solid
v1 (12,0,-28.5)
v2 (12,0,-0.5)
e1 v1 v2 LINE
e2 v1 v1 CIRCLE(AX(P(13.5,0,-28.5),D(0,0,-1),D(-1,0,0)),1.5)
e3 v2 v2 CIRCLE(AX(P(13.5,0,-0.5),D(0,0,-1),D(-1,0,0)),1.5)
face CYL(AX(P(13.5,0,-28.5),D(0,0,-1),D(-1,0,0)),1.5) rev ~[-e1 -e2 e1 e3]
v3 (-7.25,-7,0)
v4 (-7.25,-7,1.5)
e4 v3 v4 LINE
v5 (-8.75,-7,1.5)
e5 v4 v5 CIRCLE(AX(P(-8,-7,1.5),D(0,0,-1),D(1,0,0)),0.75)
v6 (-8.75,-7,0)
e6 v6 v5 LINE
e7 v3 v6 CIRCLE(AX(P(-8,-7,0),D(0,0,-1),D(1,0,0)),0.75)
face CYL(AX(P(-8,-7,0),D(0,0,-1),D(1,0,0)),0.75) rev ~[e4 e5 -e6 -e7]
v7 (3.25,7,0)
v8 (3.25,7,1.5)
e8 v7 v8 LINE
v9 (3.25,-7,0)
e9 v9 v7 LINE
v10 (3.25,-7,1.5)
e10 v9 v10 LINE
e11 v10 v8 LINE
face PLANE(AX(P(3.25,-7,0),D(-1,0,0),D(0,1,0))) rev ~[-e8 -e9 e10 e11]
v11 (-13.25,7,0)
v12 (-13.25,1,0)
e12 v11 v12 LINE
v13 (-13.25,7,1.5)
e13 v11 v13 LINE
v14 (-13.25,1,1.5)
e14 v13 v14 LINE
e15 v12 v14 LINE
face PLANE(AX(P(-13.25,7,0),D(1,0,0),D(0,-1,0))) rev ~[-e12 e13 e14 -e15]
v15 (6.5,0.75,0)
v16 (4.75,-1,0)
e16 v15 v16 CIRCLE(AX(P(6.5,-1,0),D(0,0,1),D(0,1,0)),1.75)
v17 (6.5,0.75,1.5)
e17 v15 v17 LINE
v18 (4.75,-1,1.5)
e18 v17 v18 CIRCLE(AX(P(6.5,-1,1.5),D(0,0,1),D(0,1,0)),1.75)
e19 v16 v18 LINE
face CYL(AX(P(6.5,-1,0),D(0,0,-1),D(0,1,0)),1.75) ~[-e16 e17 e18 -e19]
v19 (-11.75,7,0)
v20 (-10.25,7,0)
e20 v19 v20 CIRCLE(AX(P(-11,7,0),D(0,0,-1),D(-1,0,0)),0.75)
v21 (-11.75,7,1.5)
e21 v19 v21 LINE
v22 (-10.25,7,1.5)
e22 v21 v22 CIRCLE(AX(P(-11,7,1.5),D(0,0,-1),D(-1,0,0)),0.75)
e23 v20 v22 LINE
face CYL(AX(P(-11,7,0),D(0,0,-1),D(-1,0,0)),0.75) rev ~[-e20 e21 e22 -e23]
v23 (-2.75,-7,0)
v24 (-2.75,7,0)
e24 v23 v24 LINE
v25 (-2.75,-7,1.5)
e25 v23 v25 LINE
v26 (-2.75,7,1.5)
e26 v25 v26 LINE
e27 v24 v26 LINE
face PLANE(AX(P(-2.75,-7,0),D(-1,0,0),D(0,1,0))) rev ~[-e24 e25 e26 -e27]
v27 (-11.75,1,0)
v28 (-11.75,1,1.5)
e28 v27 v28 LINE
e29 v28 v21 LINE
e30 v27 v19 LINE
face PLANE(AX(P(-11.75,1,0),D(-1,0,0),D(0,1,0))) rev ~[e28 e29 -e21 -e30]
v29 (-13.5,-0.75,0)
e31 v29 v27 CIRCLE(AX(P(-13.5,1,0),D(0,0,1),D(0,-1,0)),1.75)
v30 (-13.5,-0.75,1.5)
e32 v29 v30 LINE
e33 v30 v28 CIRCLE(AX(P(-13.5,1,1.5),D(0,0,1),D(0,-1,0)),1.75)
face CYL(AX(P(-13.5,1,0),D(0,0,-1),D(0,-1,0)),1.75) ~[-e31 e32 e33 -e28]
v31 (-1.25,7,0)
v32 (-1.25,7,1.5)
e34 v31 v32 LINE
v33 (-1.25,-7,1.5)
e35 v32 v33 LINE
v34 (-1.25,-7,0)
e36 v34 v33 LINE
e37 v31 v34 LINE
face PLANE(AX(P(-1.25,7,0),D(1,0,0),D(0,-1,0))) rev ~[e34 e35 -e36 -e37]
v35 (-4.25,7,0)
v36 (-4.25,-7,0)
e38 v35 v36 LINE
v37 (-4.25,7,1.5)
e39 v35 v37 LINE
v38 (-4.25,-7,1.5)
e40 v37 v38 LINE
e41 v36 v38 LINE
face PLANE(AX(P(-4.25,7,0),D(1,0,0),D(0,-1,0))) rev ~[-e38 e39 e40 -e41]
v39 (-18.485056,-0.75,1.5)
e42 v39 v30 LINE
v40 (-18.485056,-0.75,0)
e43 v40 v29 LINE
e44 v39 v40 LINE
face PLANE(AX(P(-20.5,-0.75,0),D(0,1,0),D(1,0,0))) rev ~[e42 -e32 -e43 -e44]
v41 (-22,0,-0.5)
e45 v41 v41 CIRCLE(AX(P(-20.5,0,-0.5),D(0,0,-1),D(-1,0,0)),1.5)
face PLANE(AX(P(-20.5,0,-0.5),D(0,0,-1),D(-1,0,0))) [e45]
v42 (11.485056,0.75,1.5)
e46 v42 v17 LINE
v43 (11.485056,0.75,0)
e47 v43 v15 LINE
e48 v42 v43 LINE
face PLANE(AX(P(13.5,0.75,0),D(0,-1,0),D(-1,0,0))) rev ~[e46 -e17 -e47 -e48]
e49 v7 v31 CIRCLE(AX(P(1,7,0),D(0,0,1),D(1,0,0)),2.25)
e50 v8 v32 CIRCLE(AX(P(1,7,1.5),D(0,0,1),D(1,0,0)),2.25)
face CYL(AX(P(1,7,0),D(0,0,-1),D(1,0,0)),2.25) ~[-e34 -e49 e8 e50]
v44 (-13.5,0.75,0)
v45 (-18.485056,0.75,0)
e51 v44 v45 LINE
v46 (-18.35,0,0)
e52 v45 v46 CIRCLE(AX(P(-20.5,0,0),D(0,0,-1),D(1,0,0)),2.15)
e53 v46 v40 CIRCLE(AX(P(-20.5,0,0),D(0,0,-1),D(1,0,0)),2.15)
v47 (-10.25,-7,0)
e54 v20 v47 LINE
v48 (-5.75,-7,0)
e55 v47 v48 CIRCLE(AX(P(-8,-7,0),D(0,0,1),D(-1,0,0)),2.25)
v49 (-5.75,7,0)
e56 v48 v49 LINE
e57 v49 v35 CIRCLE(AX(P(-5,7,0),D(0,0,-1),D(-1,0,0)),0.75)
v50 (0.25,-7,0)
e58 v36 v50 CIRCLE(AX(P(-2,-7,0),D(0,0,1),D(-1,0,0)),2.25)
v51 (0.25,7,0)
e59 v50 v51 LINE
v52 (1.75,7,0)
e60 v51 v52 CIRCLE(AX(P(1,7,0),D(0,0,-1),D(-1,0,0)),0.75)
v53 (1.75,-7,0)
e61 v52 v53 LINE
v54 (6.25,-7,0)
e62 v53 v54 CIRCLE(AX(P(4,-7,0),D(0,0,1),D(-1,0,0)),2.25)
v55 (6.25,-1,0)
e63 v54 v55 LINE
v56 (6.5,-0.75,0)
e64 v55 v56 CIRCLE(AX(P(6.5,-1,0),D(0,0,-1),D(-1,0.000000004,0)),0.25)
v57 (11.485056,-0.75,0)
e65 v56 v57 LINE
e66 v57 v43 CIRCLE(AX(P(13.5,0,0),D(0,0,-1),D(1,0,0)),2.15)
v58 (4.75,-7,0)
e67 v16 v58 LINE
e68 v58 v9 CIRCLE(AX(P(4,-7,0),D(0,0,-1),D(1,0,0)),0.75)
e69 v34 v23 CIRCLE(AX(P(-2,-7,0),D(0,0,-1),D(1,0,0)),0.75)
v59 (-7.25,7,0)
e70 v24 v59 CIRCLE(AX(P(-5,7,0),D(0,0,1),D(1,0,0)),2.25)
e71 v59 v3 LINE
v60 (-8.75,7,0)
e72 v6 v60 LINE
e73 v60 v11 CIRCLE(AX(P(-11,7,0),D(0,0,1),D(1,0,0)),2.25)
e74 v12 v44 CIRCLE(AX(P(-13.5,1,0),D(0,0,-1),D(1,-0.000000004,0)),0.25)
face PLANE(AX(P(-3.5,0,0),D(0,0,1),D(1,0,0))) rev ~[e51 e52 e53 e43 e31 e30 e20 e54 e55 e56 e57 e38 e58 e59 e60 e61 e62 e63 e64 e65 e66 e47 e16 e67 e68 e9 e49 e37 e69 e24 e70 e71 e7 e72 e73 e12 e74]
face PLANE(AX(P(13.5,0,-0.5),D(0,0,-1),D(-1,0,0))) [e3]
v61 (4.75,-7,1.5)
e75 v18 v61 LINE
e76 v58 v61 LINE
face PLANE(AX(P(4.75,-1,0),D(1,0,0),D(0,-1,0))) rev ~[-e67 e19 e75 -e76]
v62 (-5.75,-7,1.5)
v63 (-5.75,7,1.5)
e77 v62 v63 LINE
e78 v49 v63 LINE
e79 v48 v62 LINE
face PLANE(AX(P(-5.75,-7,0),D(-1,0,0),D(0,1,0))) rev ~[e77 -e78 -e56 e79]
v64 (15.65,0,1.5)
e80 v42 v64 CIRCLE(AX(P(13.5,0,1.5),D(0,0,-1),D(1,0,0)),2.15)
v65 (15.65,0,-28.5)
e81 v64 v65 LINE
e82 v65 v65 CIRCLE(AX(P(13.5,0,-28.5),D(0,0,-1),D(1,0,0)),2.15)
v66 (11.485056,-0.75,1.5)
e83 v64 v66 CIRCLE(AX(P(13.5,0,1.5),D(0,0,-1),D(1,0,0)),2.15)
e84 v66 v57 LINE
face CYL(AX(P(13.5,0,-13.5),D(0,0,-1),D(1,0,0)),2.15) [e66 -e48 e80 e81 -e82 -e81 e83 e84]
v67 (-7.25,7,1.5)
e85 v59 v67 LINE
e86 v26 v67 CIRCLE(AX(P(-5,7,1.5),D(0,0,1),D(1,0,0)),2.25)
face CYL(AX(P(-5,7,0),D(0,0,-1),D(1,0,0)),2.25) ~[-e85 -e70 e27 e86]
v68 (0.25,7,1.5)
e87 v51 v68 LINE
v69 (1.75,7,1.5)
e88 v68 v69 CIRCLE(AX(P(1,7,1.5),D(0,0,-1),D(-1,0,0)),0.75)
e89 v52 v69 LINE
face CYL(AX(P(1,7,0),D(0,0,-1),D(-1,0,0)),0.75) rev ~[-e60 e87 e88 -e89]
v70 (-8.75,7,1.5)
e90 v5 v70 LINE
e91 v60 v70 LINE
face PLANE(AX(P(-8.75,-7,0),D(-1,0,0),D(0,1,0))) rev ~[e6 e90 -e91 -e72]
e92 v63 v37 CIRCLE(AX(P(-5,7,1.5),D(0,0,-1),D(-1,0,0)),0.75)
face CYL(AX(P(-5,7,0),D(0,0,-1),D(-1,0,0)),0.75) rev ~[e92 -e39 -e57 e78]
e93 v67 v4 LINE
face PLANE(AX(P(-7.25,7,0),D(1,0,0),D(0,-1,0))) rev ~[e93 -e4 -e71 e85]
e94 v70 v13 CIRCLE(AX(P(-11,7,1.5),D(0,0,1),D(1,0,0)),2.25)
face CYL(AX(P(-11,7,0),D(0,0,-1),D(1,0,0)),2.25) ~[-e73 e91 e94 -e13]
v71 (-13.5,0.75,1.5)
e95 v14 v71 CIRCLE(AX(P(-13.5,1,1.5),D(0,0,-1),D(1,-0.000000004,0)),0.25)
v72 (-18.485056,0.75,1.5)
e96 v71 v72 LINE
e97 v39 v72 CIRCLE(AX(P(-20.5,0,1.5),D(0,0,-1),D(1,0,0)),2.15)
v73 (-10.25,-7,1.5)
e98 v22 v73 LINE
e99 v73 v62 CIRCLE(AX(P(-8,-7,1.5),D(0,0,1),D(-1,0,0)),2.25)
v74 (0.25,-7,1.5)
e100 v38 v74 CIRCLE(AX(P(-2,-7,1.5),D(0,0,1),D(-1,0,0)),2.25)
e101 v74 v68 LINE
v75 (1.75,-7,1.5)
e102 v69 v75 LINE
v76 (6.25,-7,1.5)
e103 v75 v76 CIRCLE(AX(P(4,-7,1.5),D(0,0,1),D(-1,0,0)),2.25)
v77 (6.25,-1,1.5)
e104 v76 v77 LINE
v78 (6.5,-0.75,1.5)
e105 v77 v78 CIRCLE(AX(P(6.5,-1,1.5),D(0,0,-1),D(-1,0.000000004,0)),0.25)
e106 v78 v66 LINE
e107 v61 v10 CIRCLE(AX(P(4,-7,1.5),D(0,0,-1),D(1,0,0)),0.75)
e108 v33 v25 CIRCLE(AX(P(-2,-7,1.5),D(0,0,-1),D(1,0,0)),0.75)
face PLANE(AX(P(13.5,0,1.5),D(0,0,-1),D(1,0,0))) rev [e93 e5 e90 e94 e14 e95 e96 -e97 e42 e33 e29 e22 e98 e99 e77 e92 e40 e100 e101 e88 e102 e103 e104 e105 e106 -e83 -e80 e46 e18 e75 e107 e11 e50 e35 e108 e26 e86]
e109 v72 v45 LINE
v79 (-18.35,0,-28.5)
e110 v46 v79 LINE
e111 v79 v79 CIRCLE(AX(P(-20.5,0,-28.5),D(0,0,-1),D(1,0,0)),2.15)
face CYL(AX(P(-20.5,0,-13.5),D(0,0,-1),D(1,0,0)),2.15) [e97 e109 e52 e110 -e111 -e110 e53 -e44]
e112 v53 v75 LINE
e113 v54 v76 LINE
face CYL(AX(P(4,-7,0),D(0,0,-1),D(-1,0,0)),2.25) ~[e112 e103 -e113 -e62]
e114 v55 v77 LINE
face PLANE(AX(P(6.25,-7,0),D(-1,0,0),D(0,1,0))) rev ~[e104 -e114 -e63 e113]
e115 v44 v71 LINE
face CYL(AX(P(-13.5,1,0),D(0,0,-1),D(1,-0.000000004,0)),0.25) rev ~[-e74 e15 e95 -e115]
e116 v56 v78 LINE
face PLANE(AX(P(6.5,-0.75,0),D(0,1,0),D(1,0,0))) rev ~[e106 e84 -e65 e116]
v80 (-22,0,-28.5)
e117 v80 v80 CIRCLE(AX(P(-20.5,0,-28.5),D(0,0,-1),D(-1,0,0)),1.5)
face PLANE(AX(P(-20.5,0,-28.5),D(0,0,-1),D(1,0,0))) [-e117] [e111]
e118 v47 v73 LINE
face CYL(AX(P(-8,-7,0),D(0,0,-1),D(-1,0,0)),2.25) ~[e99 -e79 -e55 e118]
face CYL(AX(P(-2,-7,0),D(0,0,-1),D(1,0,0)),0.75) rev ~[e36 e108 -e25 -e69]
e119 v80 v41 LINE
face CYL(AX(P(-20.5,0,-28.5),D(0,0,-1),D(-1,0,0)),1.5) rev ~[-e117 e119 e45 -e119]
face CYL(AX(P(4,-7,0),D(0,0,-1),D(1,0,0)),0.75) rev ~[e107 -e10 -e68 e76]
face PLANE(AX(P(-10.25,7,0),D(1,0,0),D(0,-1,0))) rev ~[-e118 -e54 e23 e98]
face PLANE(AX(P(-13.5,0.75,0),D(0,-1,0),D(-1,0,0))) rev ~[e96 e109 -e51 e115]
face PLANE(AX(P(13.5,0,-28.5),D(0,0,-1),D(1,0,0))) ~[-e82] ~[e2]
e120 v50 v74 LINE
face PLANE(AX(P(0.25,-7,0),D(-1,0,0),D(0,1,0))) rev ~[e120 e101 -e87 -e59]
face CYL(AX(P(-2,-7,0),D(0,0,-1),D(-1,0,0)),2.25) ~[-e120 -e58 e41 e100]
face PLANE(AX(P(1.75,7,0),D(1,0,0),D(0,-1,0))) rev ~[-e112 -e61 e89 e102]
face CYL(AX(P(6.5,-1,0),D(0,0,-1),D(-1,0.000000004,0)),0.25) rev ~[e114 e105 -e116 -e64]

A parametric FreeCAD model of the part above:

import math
import FreeCAD as App
import Part
import Sketcher
from FreeCAD import Vector


def add_polygon(sketch, points):
    """Adds a closed chain of lines whose ends are joined by coincident constraints."""
    first, n = sketch.GeometryCount, len(points)
    for a, b in zip(points, points[1:] + points[:1]):
        sketch.addGeometry(Part.LineSegment(App.Vector(*a, 0), App.Vector(*b, 0)), False)
    for i in range(n):
        sketch.addConstraint(Sketcher.Constraint("Coincident", first + i, 2, first + (i + 1) % n, 1))

doc = App.newDocument("Part")
body = doc.addObject("PartDesign::Body", "Body")

sketch1 = body.newObject("Sketcher::SketchObject", "Sketch")
sketch1.AttachmentSupport = (doc.getObject("XY_Plane"), [""])
sketch1.MapMode = "FlatFace"
sketch1.addGeometry([
    Part.LineSegment(Vector(-20.5, -0.75, 0), Vector(-13.5, -0.75, 0)),
    Part.ArcOfCircle(Part.Circle(Vector(-13.5, 1, 0), Vector(0, 0, 1), 1.75), math.radians(-90), math.radians(0)),
    Part.LineSegment(Vector(-11.75, 1, 0), Vector(-11.75, 7, 0)),
    Part.ArcOfCircle(Part.Circle(Vector(-11, 7, 0), Vector(0, 0, 1), 0.75), math.radians(0), math.radians(180)),
    Part.LineSegment(Vector(-10.25, 7, 0), Vector(-10.25, -7, 0)),
    Part.ArcOfCircle(Part.Circle(Vector(-8, -7, 0), Vector(0, 0, 1), 2.25), math.radians(180), math.radians(360)),
    Part.LineSegment(Vector(-5.75, -7, 0), Vector(-5.75, 7, 0)),
    Part.ArcOfCircle(Part.Circle(Vector(-5, 7, 0), Vector(0, 0, 1), 0.75), math.radians(0), math.radians(180)),
    Part.LineSegment(Vector(-4.25, 7, 0), Vector(-4.25, -7, 0)),
    Part.ArcOfCircle(Part.Circle(Vector(-2, -7, 0), Vector(0, 0, 1), 2.25), math.radians(180), math.radians(360)),
    Part.LineSegment(Vector(0.25, -7, 0), Vector(0.25, 7, 0)),
    Part.ArcOfCircle(Part.Circle(Vector(1, 7, 0), Vector(0, 0, 1), 0.75), math.radians(0), math.radians(180)),
    Part.LineSegment(Vector(1.75, 7, 0), Vector(1.75, -7, 0)),
    Part.ArcOfCircle(Part.Circle(Vector(4, -7, 0), Vector(0, 0, 1), 2.25), math.radians(180), math.radians(360)),
    Part.LineSegment(Vector(6.25, -7, 0), Vector(6.25, -1, 0)),
    Part.ArcOfCircle(Part.Circle(Vector(6.5, -1, 0), Vector(0, 0, 1), 0.25), math.radians(90), math.radians(180)),
    Part.LineSegment(Vector(6.5, -0.75, 0), Vector(13.5, -0.75, 0)),
    Part.ArcOfCircle(Part.Circle(Vector(13.5, 0, 0), Vector(0, 0, 1), 0.75), math.radians(-90), math.radians(90)),
    Part.LineSegment(Vector(13.5, 0.75, 0), Vector(6.5, 0.75, 0)),
    Part.ArcOfCircle(Part.Circle(Vector(6.5, -1, 0), Vector(0, 0, 1), 1.75), math.radians(90), math.radians(180)),
    Part.LineSegment(Vector(4.75, -1, 0), Vector(4.75, -7, 0)),
    Part.ArcOfCircle(Part.Circle(Vector(4, -7, 0), Vector(0, 0, 1), 0.75), math.radians(180), math.radians(360)),
    Part.LineSegment(Vector(3.25, -7, 0), Vector(3.25, 7, 0)),
    Part.ArcOfCircle(Part.Circle(Vector(1, 7, 0), Vector(0, 0, 1), 2.25), math.radians(0), math.radians(180)),
    Part.LineSegment(Vector(-1.25, 7, 0), Vector(-1.25, -7, 0)),
    Part.ArcOfCircle(Part.Circle(Vector(-2, -7, 0), Vector(0, 0, 1), 0.75), math.radians(180), math.radians(360)),
    Part.LineSegment(Vector(-2.75, -7, 0), Vector(-2.75, 7, 0)),
    Part.ArcOfCircle(Part.Circle(Vector(-5, 7, 0), Vector(0, 0, 1), 2.25), math.radians(0), math.radians(180)),
    Part.LineSegment(Vector(-7.25, 7, 0), Vector(-7.25, -7, 0)),
    Part.ArcOfCircle(Part.Circle(Vector(-8, -7, 0), Vector(0, 0, 1), 0.75), math.radians(180), math.radians(360)),
    Part.LineSegment(Vector(-8.75, -7, 0), Vector(-8.75, 7, 0)),
    Part.ArcOfCircle(Part.Circle(Vector(-11, 7, 0), Vector(0, 0, 1), 2.25), math.radians(0), math.radians(180)),
    Part.LineSegment(Vector(-13.25, 7, 0), Vector(-13.25, 1, 0)),
    Part.ArcOfCircle(Part.Circle(Vector(-13.5, 1, 0), Vector(0, 0, 1), 0.25), math.radians(-90), math.radians(0)),
    Part.LineSegment(Vector(-13.5, 0.75, 0), Vector(-20.5, 0.75, 0)),
    Part.ArcOfCircle(Part.Circle(Vector(-20.5, 0, 0), Vector(0, 0, 1), 0.75), math.radians(90), math.radians(270)),
], False)
sketch1.addConstraint([
    Sketcher.Constraint("Tangent", 0, 2, 1, 1),
    Sketcher.Constraint("Tangent", 1, 2, 2, 1),
    Sketcher.Constraint("Tangent", 2, 2, 3, 2),
    Sketcher.Constraint("Tangent", 3, 1, 4, 1),
    Sketcher.Constraint("Tangent", 4, 2, 5, 1),
    Sketcher.Constraint("Tangent", 5, 2, 6, 1),
    Sketcher.Constraint("Tangent", 6, 2, 7, 2),
    Sketcher.Constraint("Tangent", 7, 1, 8, 1),
    Sketcher.Constraint("Tangent", 8, 2, 9, 1),
    Sketcher.Constraint("Tangent", 9, 2, 10, 1),
    Sketcher.Constraint("Tangent", 10, 2, 11, 2),
    Sketcher.Constraint("Tangent", 11, 1, 12, 1),
    Sketcher.Constraint("Tangent", 12, 2, 13, 1),
    Sketcher.Constraint("Tangent", 13, 2, 14, 1),
    Sketcher.Constraint("Tangent", 14, 2, 15, 2),
    Sketcher.Constraint("Tangent", 15, 1, 16, 1),
    Sketcher.Constraint("Tangent", 16, 2, 17, 1),
    Sketcher.Constraint("Tangent", 17, 2, 18, 1),
    Sketcher.Constraint("Tangent", 18, 2, 19, 1),
    Sketcher.Constraint("Tangent", 19, 2, 20, 1),
    Sketcher.Constraint("Tangent", 20, 2, 21, 2),
    Sketcher.Constraint("Tangent", 21, 1, 22, 1),
    Sketcher.Constraint("Tangent", 22, 2, 23, 1),
    Sketcher.Constraint("Tangent", 23, 2, 24, 1),
    Sketcher.Constraint("Tangent", 24, 2, 25, 2),
    Sketcher.Constraint("Tangent", 25, 1, 26, 1),
    Sketcher.Constraint("Tangent", 26, 2, 27, 1),
    Sketcher.Constraint("Tangent", 27, 2, 28, 1),
    Sketcher.Constraint("Tangent", 28, 2, 29, 2),
    Sketcher.Constraint("Tangent", 29, 1, 30, 1),
    Sketcher.Constraint("Tangent", 30, 2, 31, 1),
    Sketcher.Constraint("Tangent", 31, 2, 32, 1),
    Sketcher.Constraint("Tangent", 32, 2, 33, 2),
    Sketcher.Constraint("Tangent", 33, 1, 34, 1),
    Sketcher.Constraint("Tangent", 34, 2, 35, 1),
    Sketcher.Constraint("Tangent", 35, 2, 0, 1),
    Sketcher.Constraint("Horizontal", 0),
    Sketcher.Constraint("Vertical", 2),
    Sketcher.Constraint("Vertical", 4),
    Sketcher.Constraint("Vertical", 6),
    Sketcher.Constraint("Vertical", 8),
    Sketcher.Constraint("Vertical", 10),
    Sketcher.Constraint("Vertical", 12),
    Sketcher.Constraint("Vertical", 14),
    Sketcher.Constraint("Horizontal", 16),
    Sketcher.Constraint("Horizontal", 18),
    Sketcher.Constraint("Vertical", 20),
    Sketcher.Constraint("Vertical", 22),
    Sketcher.Constraint("Vertical", 24),
    Sketcher.Constraint("Vertical", 26),
    Sketcher.Constraint("Vertical", 28),
    Sketcher.Constraint("Vertical", 30),
    Sketcher.Constraint("Vertical", 32),
    Sketcher.Constraint("Horizontal", 34),
    Sketcher.Constraint("Coincident", 19, 3, 15, 3),
    Sketcher.Constraint("Coincident", 21, 3, 13, 3),
    Sketcher.Constraint("Coincident", 23, 3, 11, 3),
    Sketcher.Constraint("Coincident", 25, 3, 9, 3),
    Sketcher.Constraint("Coincident", 27, 3, 7, 3),
    Sketcher.Constraint("Coincident", 29, 3, 5, 3),
    Sketcher.Constraint("Coincident", 31, 3, 3, 3),
    Sketcher.Constraint("Coincident", 33, 3, 1, 3),
    Sketcher.Constraint("Equal", 3, 7),
    Sketcher.Constraint("Equal", 5, 9),
    Sketcher.Constraint("Equal", 7, 11),
    Sketcher.Constraint("Equal", 9, 13),
    Sketcher.Constraint("Equal", 11, 17),
    Sketcher.Constraint("Equal", 1, 19),
    Sketcher.Constraint("Equal", 17, 21),
    Sketcher.Constraint("Symmetric", 0, 2, 17, 2, -1, 1),
    Sketcher.Constraint("PointOnObject", 17, 3, -1),
    Sketcher.Constraint("Horizontal", 3, 3, 7, 3),
    Sketcher.Constraint("Horizontal", 5, 3, 9, 3),
    Sketcher.Constraint("Horizontal", 7, 3, 11, 3),
    Sketcher.Constraint("Horizontal", 9, 3, 13, 3),
    Sketcher.Constraint("Equal", 0, 16),
    Sketcher.Constraint("Equal", 2, 14),
    Sketcher.Constraint("DistanceX", 0, 1, 0, 2, 7.0),
    Sketcher.Constraint("DistanceY", 2, 1, 2, 2, 6.0),
    Sketcher.Constraint("DistanceY", 4, 2, 4, 1, 14.0),
    Sketcher.Constraint("Radius", 1, 1.75),
])
pad1 = body.newObject("PartDesign::Pad", "Pad")
pad1.Profile = sketch1
pad1.Length = 1.5

sketch2 = body.newObject("Sketcher::SketchObject", "Sketch001")
sketch2.AttachmentSupport = (doc.getObject("XZ_Plane"), [""])
sketch2.MapMode = "FlatFace"
add_polygon(sketch2, [(-22.6, -28.5), (-22.6, 1.5), (-20.5, 1.5), (-20.5, -28.5)])
sketch2.addGeometry(Part.LineSegment(Vector(-20.5, 1.5, 0), Vector(-20.5, -28.5, 0)), True)
sketch2.addConstraint([
    Sketcher.Constraint("Vertical", 0),
    Sketcher.Constraint("Horizontal", 1),
    Sketcher.Constraint("Vertical", 2),
    Sketcher.Constraint("Horizontal", 3),
    Sketcher.Constraint("Vertical", 4),
    Sketcher.Constraint("Coincident", 4, 1, 1, 2),
    Sketcher.Constraint("Horizontal", 3, 2, 4, 2),
    Sketcher.Constraint("DistanceY", 0, 1, 0, 2, 30.0),
    Sketcher.Constraint("DistanceX", 1, 1, 1, 2, 2.15),
    Sketcher.Constraint("DistanceY", -1, 1, 0, 2, 1.5),
    Sketcher.Constraint("DistanceX", 1, 2, -1, 1, 20.5),
])
revolution = body.newObject("PartDesign::Revolution", "Revolution")
revolution.Profile = sketch2
revolution.ReferenceAxis = (sketch2, ["Axis0"])
revolution.Angle = 360

sketch3 = body.newObject("Sketcher::SketchObject", "Sketch002")
sketch3.AttachmentSupport = (doc.getObject("XZ_Plane"), [""])
sketch3.MapMode = "FlatFace"
add_polygon(sketch3, [(13.5, -28.5), (13.5, 1.5), (15.7, 1.5), (15.7, -28.5)])
sketch3.addGeometry(Part.LineSegment(Vector(13.5, 1.5, 0), Vector(13.5, -28.5, 0)), True)
sketch3.addConstraint([
    Sketcher.Constraint("Vertical", 0),
    Sketcher.Constraint("Horizontal", 1),
    Sketcher.Constraint("Vertical", 2),
    Sketcher.Constraint("Horizontal", 3),
    Sketcher.Constraint("Vertical", 4),
    Sketcher.Constraint("Coincident", 4, 1, 0, 2),
    Sketcher.Constraint("Horizontal", 2, 2, 4, 2),
    Sketcher.Constraint("DistanceY", 0, 1, 0, 2, 30.0),
    Sketcher.Constraint("DistanceX", 1, 1, 1, 2, 2.15),
    Sketcher.Constraint("DistanceX", -1, 1, 0, 2, 13.5),
    Sketcher.Constraint("DistanceY", -1, 1, 0, 2, 1.5),
])
revolution2 = body.newObject("PartDesign::Revolution", "Revolution001")
revolution2.Profile = sketch3
revolution2.ReferenceAxis = (sketch3, ["Axis0"])
revolution2.Angle = 360

sketch4 = body.newObject("Sketcher::SketchObject", "Sketch003")
sketch4.AttachmentSupport = (doc.getObject("XY_Plane"), [""])
sketch4.MapMode = "FlatFace"
sketch4.AttachmentOffset = App.Placement(Vector(0, 0, -28.5), App.Rotation())
sketch4.addGeometry([
    Part.Circle(Vector(-20.5, 0, 0), Vector(0, 0, 1), 1.5),
    Part.Circle(Vector(13.5, 0, 0), Vector(0, 0, 1), 1.5),
], False)
sketch4.addConstraint([
    Sketcher.Constraint("Equal", 0, 1),
    Sketcher.Constraint("PointOnObject", 0, 3, -1),
    Sketcher.Constraint("PointOnObject", 1, 3, -1),
    Sketcher.Constraint("Diameter", 0, 3.0),
    Sketcher.Constraint("DistanceX", 0, 3, 1, 3, 34.0),
    Sketcher.Constraint("DistanceX", 0, 3, -1, 1, 20.5),
])
pocket1 = body.newObject("PartDesign::Pocket", "Pocket")
pocket1.Profile = sketch4
pocket1.Length = 28
pocket1.Reversed = True

doc.recompute()
